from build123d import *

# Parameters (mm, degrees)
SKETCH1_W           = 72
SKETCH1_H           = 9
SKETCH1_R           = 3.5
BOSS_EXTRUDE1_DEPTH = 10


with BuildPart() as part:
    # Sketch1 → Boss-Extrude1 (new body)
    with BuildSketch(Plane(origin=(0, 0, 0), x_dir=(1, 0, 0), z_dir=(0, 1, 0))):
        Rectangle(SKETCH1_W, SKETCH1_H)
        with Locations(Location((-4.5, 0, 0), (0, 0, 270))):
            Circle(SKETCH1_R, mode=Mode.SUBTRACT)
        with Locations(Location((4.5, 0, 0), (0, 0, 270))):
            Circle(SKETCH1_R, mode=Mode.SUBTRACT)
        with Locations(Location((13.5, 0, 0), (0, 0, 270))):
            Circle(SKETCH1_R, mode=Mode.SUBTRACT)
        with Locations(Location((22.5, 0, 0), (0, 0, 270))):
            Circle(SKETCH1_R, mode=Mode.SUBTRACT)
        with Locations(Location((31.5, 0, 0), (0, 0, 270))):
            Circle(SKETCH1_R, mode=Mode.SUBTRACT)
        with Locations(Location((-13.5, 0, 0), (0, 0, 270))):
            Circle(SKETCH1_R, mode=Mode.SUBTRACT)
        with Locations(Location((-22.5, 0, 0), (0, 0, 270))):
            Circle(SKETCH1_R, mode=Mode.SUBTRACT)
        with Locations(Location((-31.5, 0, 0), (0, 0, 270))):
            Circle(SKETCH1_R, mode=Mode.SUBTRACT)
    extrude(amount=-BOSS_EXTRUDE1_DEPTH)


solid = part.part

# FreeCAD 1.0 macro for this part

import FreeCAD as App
import Part
import Sketcher

V = App.Vector

doc = App.newDocument("Part")
body = doc.addObject("PartDesign::Body", "Body")

sketch1 = doc.addObject("Sketcher::SketchObject", "Sketch")
body.addObject(sketch1)
sketch1.AttachmentSupport = (doc.XZ_Plane, [""])
sketch1.MapMode = "FlatFace"
sketch1.addGeometry([
    Part.LineSegment(V(-36, -4.5, 0), V(-36, 4.5, 0)),
    Part.LineSegment(V(-36, 4.5, 0), V(36, 4.5, 0)),
    Part.LineSegment(V(36, 4.5, 0), V(36, -4.5, 0)),
    Part.LineSegment(V(36, -4.5, 0), V(-36, -4.5, 0)),
    Part.Circle(V(-31.5, 0, 0), V(0, 0, 1), 3.5),
    Part.Circle(V(-22.5, 0, 0), V(0, 0, 1), 3.5),
    Part.Circle(V(-13.5, 0, 0), V(0, 0, 1), 3.5),
    Part.Circle(V(-4.5, 0, 0), V(0, 0, 1), 3.5),
    Part.Circle(V(4.5, 0, 0), V(0, 0, 1), 3.5),
    Part.Circle(V(13.5, 0, 0), V(0, 0, 1), 3.5),
    Part.Circle(V(22.5, 0, 0), V(0, 0, 1), 3.5),
    Part.Circle(V(31.5, 0, 0), V(0, 0, 1), 3.5),
], False)
sketch1.addConstraint([
    Sketcher.Constraint("Coincident", 0, 2, 1, 1),
    Sketcher.Constraint("Coincident", 1, 2, 2, 1),
    Sketcher.Constraint("Coincident", 2, 2, 3, 1),
    Sketcher.Constraint("Coincident", 3, 2, 0, 1),
    Sketcher.Constraint("Vertical", 0),
    Sketcher.Constraint("Horizontal", 1),
    Sketcher.Constraint("Vertical", 2),
    Sketcher.Constraint("Horizontal", 3),
    Sketcher.Constraint("Equal", 4, 5),
    Sketcher.Constraint("Equal", 5, 6),
    Sketcher.Constraint("Equal", 6, 7),
    Sketcher.Constraint("Equal", 7, 8),
    Sketcher.Constraint("Equal", 8, 9),
    Sketcher.Constraint("Equal", 9, 10),
    Sketcher.Constraint("Equal", 10, 11),
    Sketcher.Constraint("Symmetric", 7, 3, 8, 3, -1, 1),
    Sketcher.Constraint("Symmetric", 6, 3, 9, 3, -1, 1),
    Sketcher.Constraint("Symmetric", 5, 3, 10, 3, -1, 1),
    Sketcher.Constraint("Symmetric", 4, 3, 11, 3, -1, 1),
    Sketcher.Constraint("Symmetric", 0, 2, 2, 2, -1, 1),
    Sketcher.Constraint("PointOnObject", 4, 3, -1),
    Sketcher.Constraint("PointOnObject", 5, 3, -1),
    Sketcher.Constraint("PointOnObject", 6, 3, -1),
    Sketcher.Constraint("PointOnObject", 7, 3, -1),
    Sketcher.Constraint("Diameter", 4, 7.0),
    Sketcher.Constraint("DistanceX", 1, 1, 1, 2, 72.0),
    Sketcher.Constraint("DistanceY", 0, 1, 0, 2, 9.0),
    Sketcher.Constraint("DistanceX", 4, 3, 5, 3, 9.0),
    Sketcher.Constraint("DistanceX", 5, 3, 6, 3, 9.0),
    Sketcher.Constraint("DistanceX", 6, 3, 7, 3, 9.0),
    Sketcher.Constraint("DistanceX", 7, 3, 8, 3, 9.0),
])
pad1 = doc.addObject("PartDesign::Pad", "Pad")
body.addObject(pad1)
pad1.Profile = sketch1
pad1.Length = 10

doc.recompute()
